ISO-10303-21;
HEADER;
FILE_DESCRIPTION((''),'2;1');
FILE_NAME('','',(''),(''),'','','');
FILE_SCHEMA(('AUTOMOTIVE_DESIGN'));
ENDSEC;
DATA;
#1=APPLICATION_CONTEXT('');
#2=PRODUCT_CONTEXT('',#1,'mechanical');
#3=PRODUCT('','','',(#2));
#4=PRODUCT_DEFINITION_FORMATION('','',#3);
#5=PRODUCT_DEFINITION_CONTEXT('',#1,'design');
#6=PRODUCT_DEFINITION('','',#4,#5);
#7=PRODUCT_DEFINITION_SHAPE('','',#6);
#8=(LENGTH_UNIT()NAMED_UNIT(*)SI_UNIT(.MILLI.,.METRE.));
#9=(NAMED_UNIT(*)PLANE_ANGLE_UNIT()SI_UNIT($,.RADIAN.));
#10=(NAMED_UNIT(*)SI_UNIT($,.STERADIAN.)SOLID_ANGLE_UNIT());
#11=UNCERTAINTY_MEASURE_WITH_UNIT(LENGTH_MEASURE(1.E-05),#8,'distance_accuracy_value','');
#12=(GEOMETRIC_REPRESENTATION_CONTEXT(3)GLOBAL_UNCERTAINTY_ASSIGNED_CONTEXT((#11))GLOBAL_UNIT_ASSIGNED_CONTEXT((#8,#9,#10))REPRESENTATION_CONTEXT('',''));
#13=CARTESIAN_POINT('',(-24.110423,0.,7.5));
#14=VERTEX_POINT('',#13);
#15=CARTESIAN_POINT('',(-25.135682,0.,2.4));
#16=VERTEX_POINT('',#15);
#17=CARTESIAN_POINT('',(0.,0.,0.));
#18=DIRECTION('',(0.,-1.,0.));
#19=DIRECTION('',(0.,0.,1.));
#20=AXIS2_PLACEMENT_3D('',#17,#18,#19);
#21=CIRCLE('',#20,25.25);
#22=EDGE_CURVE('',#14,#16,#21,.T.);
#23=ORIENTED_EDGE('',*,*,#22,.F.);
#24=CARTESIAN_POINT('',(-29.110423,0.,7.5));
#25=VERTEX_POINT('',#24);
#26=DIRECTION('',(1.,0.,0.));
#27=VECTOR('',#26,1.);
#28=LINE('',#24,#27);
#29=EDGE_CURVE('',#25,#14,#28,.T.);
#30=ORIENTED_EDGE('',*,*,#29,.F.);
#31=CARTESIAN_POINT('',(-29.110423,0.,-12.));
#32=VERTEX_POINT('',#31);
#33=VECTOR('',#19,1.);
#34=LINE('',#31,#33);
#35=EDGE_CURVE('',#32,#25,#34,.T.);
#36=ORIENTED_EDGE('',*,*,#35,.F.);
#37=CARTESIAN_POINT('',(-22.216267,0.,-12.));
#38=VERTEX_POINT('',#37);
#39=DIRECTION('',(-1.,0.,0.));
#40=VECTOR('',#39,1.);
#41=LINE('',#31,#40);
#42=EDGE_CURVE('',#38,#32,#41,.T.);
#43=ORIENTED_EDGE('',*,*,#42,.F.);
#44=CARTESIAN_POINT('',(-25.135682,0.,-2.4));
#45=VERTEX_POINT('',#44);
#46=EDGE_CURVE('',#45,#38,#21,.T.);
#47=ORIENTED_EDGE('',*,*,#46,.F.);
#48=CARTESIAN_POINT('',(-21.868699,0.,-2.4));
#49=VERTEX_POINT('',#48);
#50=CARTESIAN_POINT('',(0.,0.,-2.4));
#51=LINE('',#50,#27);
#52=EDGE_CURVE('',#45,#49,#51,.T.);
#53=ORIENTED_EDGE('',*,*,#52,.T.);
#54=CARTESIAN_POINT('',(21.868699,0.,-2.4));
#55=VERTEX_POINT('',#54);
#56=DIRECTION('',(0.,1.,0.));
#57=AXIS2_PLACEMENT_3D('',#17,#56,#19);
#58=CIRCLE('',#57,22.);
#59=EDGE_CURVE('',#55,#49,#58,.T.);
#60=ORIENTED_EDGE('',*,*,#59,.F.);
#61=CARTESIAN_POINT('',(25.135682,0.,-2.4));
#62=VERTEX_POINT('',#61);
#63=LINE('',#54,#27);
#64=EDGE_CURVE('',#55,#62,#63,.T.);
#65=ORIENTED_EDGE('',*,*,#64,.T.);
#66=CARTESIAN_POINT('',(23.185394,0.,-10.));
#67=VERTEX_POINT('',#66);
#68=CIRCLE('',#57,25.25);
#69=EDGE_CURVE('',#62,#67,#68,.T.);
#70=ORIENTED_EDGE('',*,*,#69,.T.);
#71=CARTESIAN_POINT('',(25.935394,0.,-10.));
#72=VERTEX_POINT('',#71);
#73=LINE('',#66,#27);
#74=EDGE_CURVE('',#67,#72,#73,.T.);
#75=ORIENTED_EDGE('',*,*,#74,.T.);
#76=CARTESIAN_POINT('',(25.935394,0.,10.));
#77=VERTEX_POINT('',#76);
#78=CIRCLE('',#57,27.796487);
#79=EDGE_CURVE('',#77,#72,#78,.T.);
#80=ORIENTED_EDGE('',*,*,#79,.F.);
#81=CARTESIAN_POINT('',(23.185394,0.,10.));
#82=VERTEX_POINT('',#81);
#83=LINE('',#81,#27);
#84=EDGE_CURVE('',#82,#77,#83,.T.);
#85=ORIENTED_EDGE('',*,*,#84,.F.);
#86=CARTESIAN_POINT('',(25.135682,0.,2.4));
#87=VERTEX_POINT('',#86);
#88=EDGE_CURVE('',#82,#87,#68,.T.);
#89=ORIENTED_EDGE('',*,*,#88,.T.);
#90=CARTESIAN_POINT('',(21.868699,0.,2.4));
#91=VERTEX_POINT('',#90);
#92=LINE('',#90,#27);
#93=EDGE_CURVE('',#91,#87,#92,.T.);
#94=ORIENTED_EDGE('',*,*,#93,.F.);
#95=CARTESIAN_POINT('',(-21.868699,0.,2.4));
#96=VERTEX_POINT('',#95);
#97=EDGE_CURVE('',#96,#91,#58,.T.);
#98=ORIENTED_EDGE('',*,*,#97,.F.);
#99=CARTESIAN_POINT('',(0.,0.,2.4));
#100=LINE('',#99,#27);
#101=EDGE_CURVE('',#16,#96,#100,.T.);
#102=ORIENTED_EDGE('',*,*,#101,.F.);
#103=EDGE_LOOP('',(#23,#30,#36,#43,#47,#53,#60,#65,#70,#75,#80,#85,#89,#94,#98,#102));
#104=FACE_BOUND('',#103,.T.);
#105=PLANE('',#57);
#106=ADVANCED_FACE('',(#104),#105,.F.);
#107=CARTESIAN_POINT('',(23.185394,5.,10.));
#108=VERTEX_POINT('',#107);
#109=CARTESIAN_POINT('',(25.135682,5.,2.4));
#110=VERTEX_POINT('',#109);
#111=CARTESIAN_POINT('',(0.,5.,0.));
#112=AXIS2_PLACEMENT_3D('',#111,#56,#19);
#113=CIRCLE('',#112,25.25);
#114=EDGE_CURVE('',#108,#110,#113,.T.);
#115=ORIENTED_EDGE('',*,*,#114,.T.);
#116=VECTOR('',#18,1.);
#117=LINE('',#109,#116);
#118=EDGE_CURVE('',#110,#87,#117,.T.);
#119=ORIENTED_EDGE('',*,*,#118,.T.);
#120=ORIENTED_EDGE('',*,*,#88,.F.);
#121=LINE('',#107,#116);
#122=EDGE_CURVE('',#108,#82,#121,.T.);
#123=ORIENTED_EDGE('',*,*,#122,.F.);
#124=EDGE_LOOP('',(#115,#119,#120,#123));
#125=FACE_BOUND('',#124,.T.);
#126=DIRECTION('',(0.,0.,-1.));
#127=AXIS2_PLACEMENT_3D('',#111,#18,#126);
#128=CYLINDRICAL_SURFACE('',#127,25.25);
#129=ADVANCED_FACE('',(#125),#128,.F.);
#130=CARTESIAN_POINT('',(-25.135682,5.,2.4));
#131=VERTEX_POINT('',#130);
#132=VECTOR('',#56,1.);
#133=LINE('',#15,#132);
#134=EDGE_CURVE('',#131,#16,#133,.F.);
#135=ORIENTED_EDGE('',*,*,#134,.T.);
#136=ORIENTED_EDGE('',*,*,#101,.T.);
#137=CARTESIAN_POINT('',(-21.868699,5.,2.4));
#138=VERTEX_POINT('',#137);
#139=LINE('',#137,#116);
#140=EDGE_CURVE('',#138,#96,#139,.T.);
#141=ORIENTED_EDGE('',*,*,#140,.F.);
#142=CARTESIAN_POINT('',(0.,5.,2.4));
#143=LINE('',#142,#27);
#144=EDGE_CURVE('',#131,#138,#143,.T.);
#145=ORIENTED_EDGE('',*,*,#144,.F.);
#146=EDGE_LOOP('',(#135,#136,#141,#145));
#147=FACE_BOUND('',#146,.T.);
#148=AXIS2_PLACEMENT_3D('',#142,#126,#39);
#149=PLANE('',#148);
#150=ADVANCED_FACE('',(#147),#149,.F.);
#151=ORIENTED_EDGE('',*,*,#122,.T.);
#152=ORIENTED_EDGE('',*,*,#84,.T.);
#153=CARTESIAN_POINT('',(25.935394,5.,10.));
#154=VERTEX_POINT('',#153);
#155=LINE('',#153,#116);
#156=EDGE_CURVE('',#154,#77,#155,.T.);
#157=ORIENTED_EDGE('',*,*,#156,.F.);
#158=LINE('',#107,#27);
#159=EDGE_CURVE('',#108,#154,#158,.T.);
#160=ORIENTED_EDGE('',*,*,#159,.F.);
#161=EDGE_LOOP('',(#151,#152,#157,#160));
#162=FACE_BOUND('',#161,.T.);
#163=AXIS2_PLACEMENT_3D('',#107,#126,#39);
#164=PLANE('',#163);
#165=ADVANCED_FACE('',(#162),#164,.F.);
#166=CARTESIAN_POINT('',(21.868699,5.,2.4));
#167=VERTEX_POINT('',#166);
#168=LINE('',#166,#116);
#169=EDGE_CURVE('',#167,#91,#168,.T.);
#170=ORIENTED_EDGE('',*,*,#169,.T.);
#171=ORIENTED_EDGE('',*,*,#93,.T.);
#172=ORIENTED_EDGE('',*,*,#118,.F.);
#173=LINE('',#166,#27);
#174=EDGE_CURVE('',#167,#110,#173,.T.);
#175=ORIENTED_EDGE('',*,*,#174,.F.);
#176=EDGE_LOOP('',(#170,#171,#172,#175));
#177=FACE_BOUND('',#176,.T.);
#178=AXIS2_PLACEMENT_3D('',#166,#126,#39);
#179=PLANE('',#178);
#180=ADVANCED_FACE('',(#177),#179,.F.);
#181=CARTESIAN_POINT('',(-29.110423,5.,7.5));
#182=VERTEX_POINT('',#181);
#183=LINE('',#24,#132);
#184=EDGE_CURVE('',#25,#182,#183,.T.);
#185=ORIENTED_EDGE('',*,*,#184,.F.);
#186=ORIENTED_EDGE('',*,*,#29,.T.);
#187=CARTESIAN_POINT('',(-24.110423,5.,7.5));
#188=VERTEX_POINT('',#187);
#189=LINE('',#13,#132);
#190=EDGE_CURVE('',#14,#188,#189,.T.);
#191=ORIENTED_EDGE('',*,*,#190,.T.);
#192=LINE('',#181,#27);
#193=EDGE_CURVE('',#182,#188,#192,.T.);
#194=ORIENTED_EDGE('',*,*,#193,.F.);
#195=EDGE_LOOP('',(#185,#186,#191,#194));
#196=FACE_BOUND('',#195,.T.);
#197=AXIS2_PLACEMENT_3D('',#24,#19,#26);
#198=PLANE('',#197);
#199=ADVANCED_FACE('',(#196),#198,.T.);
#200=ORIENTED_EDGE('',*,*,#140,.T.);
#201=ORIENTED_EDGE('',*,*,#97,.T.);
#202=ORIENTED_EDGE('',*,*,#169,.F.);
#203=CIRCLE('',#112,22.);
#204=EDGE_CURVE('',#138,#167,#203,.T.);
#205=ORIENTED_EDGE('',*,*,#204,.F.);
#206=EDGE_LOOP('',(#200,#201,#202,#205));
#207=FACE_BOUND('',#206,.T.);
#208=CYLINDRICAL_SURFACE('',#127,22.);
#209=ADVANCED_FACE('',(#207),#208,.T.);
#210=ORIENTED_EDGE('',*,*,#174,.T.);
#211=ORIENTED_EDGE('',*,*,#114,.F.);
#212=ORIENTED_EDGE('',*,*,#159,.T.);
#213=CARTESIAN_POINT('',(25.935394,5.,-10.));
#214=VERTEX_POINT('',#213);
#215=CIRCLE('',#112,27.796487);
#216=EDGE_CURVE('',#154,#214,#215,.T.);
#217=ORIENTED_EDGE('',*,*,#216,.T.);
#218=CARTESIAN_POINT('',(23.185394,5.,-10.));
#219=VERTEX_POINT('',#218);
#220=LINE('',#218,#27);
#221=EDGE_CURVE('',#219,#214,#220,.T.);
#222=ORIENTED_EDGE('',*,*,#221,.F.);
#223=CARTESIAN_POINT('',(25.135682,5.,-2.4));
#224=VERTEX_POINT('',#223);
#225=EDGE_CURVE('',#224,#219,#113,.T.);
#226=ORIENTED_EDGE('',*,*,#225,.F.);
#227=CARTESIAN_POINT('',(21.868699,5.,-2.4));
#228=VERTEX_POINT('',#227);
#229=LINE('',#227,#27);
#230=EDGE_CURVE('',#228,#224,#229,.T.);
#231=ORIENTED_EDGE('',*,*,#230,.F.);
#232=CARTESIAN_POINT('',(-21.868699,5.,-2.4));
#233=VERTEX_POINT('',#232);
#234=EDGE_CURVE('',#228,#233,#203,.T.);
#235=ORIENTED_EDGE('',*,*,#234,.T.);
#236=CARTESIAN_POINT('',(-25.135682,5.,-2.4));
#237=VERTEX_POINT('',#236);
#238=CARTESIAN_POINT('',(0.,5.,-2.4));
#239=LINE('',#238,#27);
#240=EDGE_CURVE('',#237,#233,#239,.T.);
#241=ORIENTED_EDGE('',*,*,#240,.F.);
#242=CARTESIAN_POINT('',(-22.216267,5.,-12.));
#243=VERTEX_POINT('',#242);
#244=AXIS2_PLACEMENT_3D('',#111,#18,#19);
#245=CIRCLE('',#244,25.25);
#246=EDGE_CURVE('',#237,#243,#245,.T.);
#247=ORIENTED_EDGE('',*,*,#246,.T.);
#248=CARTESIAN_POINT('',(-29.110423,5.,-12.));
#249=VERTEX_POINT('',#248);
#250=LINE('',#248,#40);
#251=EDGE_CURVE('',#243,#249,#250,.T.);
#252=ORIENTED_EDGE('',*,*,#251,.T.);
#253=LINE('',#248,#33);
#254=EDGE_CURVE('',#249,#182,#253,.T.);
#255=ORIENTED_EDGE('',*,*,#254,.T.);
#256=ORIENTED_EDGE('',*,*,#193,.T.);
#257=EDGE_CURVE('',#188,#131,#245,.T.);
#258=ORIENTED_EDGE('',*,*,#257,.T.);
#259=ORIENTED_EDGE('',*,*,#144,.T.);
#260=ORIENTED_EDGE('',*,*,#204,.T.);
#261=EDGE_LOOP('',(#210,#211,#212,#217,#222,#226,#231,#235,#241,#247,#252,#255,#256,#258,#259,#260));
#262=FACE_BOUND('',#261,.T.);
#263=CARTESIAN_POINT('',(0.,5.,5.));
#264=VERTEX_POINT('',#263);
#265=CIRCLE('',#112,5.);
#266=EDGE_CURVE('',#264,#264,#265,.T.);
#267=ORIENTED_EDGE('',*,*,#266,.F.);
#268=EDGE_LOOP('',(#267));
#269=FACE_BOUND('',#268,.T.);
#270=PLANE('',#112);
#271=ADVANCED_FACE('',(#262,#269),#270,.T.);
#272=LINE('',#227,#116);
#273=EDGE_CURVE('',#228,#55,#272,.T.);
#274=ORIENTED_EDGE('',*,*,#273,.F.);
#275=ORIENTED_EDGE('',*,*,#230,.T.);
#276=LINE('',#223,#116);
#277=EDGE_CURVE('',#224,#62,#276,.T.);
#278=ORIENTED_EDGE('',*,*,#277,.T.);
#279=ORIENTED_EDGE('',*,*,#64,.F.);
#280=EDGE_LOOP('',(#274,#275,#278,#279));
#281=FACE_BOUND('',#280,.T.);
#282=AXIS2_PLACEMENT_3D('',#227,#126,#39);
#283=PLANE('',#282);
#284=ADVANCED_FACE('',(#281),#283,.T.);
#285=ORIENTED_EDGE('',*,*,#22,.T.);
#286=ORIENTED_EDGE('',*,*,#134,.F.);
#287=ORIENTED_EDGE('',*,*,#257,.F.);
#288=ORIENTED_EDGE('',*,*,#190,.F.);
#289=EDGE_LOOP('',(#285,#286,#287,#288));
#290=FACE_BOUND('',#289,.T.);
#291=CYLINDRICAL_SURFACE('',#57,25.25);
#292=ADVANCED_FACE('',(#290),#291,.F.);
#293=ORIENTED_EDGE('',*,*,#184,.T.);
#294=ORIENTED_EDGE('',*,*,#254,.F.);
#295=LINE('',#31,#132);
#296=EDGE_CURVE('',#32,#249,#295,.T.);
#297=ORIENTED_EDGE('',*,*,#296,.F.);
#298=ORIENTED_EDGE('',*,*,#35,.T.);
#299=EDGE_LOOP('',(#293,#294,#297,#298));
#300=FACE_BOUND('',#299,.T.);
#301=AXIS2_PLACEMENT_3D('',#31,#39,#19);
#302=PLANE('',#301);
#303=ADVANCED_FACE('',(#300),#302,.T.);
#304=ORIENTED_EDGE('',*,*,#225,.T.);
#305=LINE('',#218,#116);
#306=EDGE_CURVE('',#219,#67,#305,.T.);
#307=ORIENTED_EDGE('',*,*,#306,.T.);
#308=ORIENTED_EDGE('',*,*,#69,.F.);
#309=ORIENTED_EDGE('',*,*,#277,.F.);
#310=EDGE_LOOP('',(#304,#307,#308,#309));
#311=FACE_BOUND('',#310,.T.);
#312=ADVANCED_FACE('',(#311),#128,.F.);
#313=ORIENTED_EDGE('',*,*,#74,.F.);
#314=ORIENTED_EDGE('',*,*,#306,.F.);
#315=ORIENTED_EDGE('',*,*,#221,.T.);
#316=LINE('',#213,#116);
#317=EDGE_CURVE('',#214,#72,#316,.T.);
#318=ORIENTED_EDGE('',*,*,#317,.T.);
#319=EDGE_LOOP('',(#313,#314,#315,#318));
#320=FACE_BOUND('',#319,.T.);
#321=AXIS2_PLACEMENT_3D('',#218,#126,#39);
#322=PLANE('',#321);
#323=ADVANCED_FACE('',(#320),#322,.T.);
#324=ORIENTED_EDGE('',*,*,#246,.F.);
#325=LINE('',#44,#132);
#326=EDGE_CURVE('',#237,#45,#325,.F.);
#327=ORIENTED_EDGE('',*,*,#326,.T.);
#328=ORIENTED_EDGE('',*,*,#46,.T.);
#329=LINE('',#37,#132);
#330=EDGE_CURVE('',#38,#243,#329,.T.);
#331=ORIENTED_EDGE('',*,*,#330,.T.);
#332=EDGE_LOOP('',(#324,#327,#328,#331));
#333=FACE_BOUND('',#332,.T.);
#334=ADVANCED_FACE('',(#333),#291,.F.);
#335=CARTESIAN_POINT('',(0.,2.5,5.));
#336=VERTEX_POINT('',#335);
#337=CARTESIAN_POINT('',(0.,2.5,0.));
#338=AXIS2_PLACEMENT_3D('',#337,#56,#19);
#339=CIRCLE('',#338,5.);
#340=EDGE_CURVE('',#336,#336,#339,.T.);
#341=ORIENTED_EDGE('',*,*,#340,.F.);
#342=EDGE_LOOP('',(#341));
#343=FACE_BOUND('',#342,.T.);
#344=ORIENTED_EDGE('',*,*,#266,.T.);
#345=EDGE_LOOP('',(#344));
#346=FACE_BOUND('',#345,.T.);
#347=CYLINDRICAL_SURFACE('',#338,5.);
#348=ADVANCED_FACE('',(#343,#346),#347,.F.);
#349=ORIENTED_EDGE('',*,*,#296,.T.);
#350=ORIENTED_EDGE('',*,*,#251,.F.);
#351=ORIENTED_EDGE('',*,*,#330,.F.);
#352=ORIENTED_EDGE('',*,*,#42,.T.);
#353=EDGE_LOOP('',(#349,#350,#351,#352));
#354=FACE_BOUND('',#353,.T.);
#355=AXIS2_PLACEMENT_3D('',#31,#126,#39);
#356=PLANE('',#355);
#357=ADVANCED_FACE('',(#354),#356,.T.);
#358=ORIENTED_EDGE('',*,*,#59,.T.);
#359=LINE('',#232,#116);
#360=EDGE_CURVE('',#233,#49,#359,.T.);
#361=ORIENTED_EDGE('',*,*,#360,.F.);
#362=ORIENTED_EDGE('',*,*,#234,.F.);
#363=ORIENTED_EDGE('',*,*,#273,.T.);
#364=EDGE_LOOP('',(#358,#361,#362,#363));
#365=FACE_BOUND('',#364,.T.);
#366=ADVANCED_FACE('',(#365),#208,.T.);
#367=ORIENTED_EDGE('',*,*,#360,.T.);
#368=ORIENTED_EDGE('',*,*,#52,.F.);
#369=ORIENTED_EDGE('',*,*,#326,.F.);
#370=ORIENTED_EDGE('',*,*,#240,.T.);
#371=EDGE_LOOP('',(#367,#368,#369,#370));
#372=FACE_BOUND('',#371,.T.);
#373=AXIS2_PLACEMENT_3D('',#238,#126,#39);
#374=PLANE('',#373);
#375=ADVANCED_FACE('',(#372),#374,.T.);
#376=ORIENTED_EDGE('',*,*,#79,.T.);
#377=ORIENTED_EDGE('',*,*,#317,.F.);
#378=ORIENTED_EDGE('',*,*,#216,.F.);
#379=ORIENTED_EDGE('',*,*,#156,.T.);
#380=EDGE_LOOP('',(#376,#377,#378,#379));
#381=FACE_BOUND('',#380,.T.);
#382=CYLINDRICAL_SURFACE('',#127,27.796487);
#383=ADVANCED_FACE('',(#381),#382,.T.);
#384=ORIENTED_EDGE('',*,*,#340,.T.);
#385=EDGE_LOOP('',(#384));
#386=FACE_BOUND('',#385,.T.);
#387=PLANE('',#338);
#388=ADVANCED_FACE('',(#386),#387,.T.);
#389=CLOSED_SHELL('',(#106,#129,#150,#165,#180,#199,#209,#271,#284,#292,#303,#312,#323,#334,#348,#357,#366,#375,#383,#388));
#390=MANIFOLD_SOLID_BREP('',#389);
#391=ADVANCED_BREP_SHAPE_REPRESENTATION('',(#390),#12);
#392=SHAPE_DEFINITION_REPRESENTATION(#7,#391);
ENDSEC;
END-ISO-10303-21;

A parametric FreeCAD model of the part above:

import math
import FreeCAD as App
import Part
import Sketcher

V = App.Vector

doc = App.newDocument("Part")
params = doc.addObject("Spreadsheet::Sheet", "Params")
for row, (alias, value) in enumerate([
    ("sketch1_radius", "22 mm"),
    ("sketch1_width", "4 mm"),
    ("sketch1_radius2", "25.25 mm"),
    ("sketch1_height", "4.8 mm"),
    ("sketch1_width2", "2.75 mm"),
    ("pad1_length", "5 mm"),
    ("sketch2_width", "5 mm"),
    ("sketch2_radius", "25.25 mm"),
    ("sketch2_height", "19.5 mm"),
    ("pad2_length", "5 mm"),
    ("sketch3_diameter", "10 mm"),
    ("pocket1_length", "2.5 mm"),
], start=1):
    params.set(f"A{row}", alias)
    params.set(f"B{row}", "=" + value)
    params.setAlias(f"B{row}", alias)

body = doc.addObject("PartDesign::Body", "Body")

sketch1 = doc.addObject("Sketcher::SketchObject", "Sketch")
body.addObject(sketch1)
sketch1.AttachmentSupport = (doc.XZ_Plane, [""])
sketch1.MapMode = "FlatFace"
sketch1.addGeometry([
    Part.LineSegment(V(-25.9, 2.4, 0), V(-21.9, 2.4, 0)),
    Part.ArcOfCircle(Part.Circle(V(0, 0, 0), V(0, 0, 1), 22), math.radians(6), math.radians(174)),
    Part.LineSegment(V(21.9, 2.4, 0), V(25.1, 2.4, 0)),
    Part.ArcOfCircle(Part.Circle(V(0, 0, 0), V(0, 0, 1), 25.2), math.radians(5.45), math.radians(23.33)),
    Part.LineSegment(V(23.2, 10, 0), V(25.9, 10, 0)),
    Part.ArcOfCircle(Part.Circle(V(0, 0, 0), V(0, 0, 1), 27.8), math.radians(-21), math.radians(21)),
    Part.LineSegment(V(25.9, -10, 0), V(23.2, -10, 0)),
    Part.ArcOfCircle(Part.Circle(V(0, 0, 0), V(0, 0, 1), 25.2), math.radians(-23.33), math.radians(-5.45)),
    Part.LineSegment(V(25.1, -2.4, 0), V(21.9, -2.4, 0)),
    Part.ArcOfCircle(Part.Circle(V(0, 0, 0), V(0, 0, 1), 22), math.radians(-174), math.radians(-6)),
    Part.LineSegment(V(-21.9, -2.4, 0), V(-25.9, -2.4, 0)),
    Part.LineSegment(V(-25.9, -2.4, 0), V(-25.9, 2.4, 0)),
], False)
sketch1.addConstraint([
    Sketcher.Constraint("Coincident", 0, 2, 1, 2),
    Sketcher.Constraint("Coincident", 1, 1, 2, 1),
    Sketcher.Constraint("Coincident", 2, 2, 3, 1),
    Sketcher.Constraint("Coincident", 3, 2, 4, 1),
    Sketcher.Constraint("Coincident", 4, 2, 5, 2),
    Sketcher.Constraint("Coincident", 5, 1, 6, 1),
    Sketcher.Constraint("Coincident", 6, 2, 7, 1),
    Sketcher.Constraint("Coincident", 7, 2, 8, 1),
    Sketcher.Constraint("Coincident", 8, 2, 9, 2),
    Sketcher.Constraint("Coincident", 9, 1, 10, 1),
    Sketcher.Constraint("Coincident", 10, 2, 11, 1),
    Sketcher.Constraint("Coincident", 11, 2, 0, 1),
    Sketcher.Constraint("Horizontal", 0),
    Sketcher.Constraint("Horizontal", 2),
    Sketcher.Constraint("Horizontal", 4),
    Sketcher.Constraint("Horizontal", 6),
    Sketcher.Constraint("Horizontal", 8),
    Sketcher.Constraint("Horizontal", 10),
    Sketcher.Constraint("Vertical", 11),
    Sketcher.Constraint("Coincident", 1, 3, -1, 1),
    Sketcher.Constraint("Coincident", 3, 3, -1, 1),
    Sketcher.Constraint("Coincident", 5, 3, -1, 1),
    Sketcher.Constraint("Coincident", 7, 3, -1, 1),
    Sketcher.Constraint("Coincident", 9, 3, -1, 1),
    Sketcher.Constraint("Equal", 3, 7),
    Sketcher.Constraint("Equal", 1, 9),
    Sketcher.Constraint("Horizontal", 0, 2, 1, 1),
    Sketcher.Constraint("Horizontal", 8, 2, 9, 1),
    Sketcher.Constraint("Vertical", 4, 2, 5, 1),
    Sketcher.Constraint("Vertical", 2, 2, 7, 2),
    Sketcher.Constraint("Radius", 1, 22.0),
    Sketcher.Constraint("DistanceX", 0, 1, 0, 2, 4.0),
    Sketcher.Constraint("Radius", 3, 25.25),
    Sketcher.Constraint("DistanceY", 11, 1, 11, 2, 4.8),
    Sketcher.Constraint("DistanceY", -1, 1, 3, 2, 10.0),
    Sketcher.Constraint("DistanceX", 4, 1, 4, 2, 2.75),
])
sketch1.setExpression("Constraints[30]", "Params.sketch1_radius")
sketch1.setExpression("Constraints[31]", "Params.sketch1_width")
sketch1.setExpression("Constraints[32]", "Params.sketch1_radius2")
sketch1.setExpression("Constraints[33]", "Params.sketch1_height")
sketch1.setExpression("Constraints[35]", "Params.sketch1_width2")
pad1 = doc.addObject("PartDesign::Pad", "Pad")
body.addObject(pad1)
pad1.Profile = sketch1
pad1.setExpression("Length", "Params.pad1_length")
pad1.Reversed = True

sketch2 = doc.addObject("Sketcher::SketchObject", "Sketch001")
body.addObject(sketch2)
sketch2.AttachmentSupport = (doc.XZ_Plane, [""])
sketch2.MapMode = "FlatFace"
sketch2.AttachmentOffset = App.Placement(V(0, 0, -5), App.Rotation())
sketch2.addGeometry([
    Part.LineSegment(V(-22, -12, 0), V(-29, -12, 0)),
    Part.LineSegment(V(-29, -12, 0), V(-29, 8, 0)),
    Part.LineSegment(V(-29, 8, 0), V(-24, 8, 0)),
    Part.ArcOfCircle(Part.Circle(V(0, 0, 0), V(0, 0, 1), 25), math.radians(163), math.radians(208)),
], False)
sketch2.addConstraint([
    Sketcher.Constraint("Coincident", 0, 2, 1, 1),
    Sketcher.Constraint("Coincident", 1, 2, 2, 1),
    Sketcher.Constraint("Coincident", 2, 2, 3, 1),
    Sketcher.Constraint("Coincident", 3, 2, 0, 1),
    Sketcher.Constraint("Horizontal", 0),
    Sketcher.Constraint("Vertical", 1),
    Sketcher.Constraint("Horizontal", 2),
    Sketcher.Constraint("Coincident", 3, 3, -1, 1),
    Sketcher.Constraint("DistanceX", 2, 1, 2, 2, 5.0),
    Sketcher.Constraint("Radius", 3, 25.25),
    Sketcher.Constraint("DistanceY", 1, 1, 1, 2, 19.5),
    Sketcher.Constraint("DistanceY", 0, 2, -1, 1, 12.0),
])
sketch2.setExpression("Constraints[8]", "Params.sketch2_width")
sketch2.setExpression("Constraints[9]", "Params.sketch2_radius")
sketch2.setExpression("Constraints[10]", "Params.sketch2_height")
pad2 = doc.addObject("PartDesign::Pad", "Pad001")
body.addObject(pad2)
pad2.Profile = sketch2
pad2.setExpression("Length", "Params.pad2_length")

sketch3 = doc.addObject("Sketcher::SketchObject", "Sketch002")
body.addObject(sketch3)
sketch3.AttachmentSupport = (doc.XZ_Plane, [""])
sketch3.MapMode = "FlatFace"
sketch3.AttachmentOffset = App.Placement(V(0, 0, -5), App.Rotation())
sketch3.addGeometry(Part.Circle(V(0, 0, 0), V(0, 0, 1), 5), False)
sketch3.addConstraint([
    Sketcher.Constraint("Coincident", 0, 3, -1, 1),
    Sketcher.Constraint("Diameter", 0, 10.0),
])
sketch3.setExpression("Constraints[1]", "Params.sketch3_diameter")
pocket1 = doc.addObject("PartDesign::Pocket", "Pocket")
body.addObject(pocket1)
pocket1.Profile = sketch3
pocket1.setExpression("Length", "Params.pocket1_length")
pocket1.Reversed = True

doc.recompute()
